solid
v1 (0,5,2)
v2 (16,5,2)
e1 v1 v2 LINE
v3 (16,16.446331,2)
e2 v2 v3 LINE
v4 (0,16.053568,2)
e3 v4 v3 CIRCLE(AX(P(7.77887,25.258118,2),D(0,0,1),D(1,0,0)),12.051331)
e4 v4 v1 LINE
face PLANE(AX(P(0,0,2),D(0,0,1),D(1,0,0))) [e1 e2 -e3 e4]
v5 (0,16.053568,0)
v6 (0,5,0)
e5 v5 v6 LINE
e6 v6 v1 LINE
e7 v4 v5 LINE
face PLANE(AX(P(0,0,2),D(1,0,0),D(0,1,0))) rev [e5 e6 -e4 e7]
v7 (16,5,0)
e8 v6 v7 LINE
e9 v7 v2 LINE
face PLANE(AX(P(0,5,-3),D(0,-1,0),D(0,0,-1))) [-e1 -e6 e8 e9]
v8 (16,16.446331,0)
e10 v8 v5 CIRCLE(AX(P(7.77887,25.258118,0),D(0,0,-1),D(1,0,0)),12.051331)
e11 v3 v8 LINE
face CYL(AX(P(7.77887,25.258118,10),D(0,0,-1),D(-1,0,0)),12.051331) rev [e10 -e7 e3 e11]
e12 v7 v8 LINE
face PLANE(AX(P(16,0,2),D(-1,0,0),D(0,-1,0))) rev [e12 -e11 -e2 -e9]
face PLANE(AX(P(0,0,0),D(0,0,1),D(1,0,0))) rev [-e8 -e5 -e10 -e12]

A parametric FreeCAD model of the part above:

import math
import FreeCAD as App
import Part
import Sketcher
from FreeCAD import Vector
Q = App.Units.Quantity

doc = App.newDocument("Part")
body = doc.addObject("PartDesign::Body", "Body")

# Sketch on XY plane
sketch1 = doc.addObject("Sketcher::SketchObject", "Sketch")
body.addObject(sketch1)
sketch1.AttachmentSupport = (doc.XY_Plane, [""])
sketch1.MapMode = "FlatFace"
sketch1.addGeometry(Part.LineSegment(Vector(0, 32, 0), Vector(0, 0, 0)), False)
sketch1.addGeometry(Part.LineSegment(Vector(0, 0, 0), Vector(16, 0, 0)), False)
sketch1.addGeometry(Part.LineSegment(Vector(16, 0, 0), Vector(16, 32, 0)), False)
sketch1.addGeometry(Part.LineSegment(Vector(16, 32, 0), Vector(0, 32, 0)), False)
sketch1.addConstraint(Sketcher.Constraint("Coincident", 0, 2, 1, 1))
sketch1.addConstraint(Sketcher.Constraint("Coincident", 1, 2, 2, 1))
sketch1.addConstraint(Sketcher.Constraint("Coincident", 2, 2, 3, 1))
sketch1.addConstraint(Sketcher.Constraint("Coincident", 3, 2, 0, 1))
sketch1.addConstraint(Sketcher.Constraint("Vertical", 0))
sketch1.addConstraint(Sketcher.Constraint("Horizontal", 1))
sketch1.addConstraint(Sketcher.Constraint("Vertical", 2))
sketch1.addConstraint(Sketcher.Constraint("Horizontal", 3))
sketch1.addConstraint(Sketcher.Constraint("Coincident", 0, 2, -1, 1))
sketch1.addConstraint(Sketcher.Constraint("DistanceX", 1, 1, 1, 2, Q("16 mm")))
sketch1.addConstraint(Sketcher.Constraint("DistanceY", 0, 2, 0, 1, Q("31.855735 mm")))
pad1 = doc.addObject("PartDesign::Pad", "Pad")
body.addObject(pad1)
pad1.Profile = sketch1
pad1.Length = 2

# Sketch on XY plane
sketch2 = doc.addObject("Sketcher::SketchObject", "Sketch001")
body.addObject(sketch2)
sketch2.AttachmentSupport = (doc.XY_Plane, [""])
sketch2.MapMode = "FlatFace"
sketch2.AttachmentOffset = App.Placement(Vector(0, 0, 2), App.Rotation())
sketch2.addGeometry(Part.LineSegment(Vector(0, 5, 0), Vector(0, 0, 0)), False)
sketch2.addGeometry(Part.LineSegment(Vector(0, 0, 0), Vector(16, 0, 0)), False)
sketch2.addGeometry(Part.LineSegment(Vector(16, 0, 0), Vector(16, 5, 0)), False)
sketch2.addGeometry(Part.LineSegment(Vector(16, 5, 0), Vector(0, 5, 0)), False)
sketch2.addConstraint(Sketcher.Constraint("Coincident", 0, 2, 1, 1))
sketch2.addConstraint(Sketcher.Constraint("Coincident", 1, 2, 2, 1))
sketch2.addConstraint(Sketcher.Constraint("Coincident", 2, 2, 3, 1))
sketch2.addConstraint(Sketcher.Constraint("Coincident", 3, 2, 0, 1))
sketch2.addConstraint(Sketcher.Constraint("Vertical", 0))
sketch2.addConstraint(Sketcher.Constraint("Horizontal", 1))
sketch2.addConstraint(Sketcher.Constraint("Vertical", 2))
sketch2.addConstraint(Sketcher.Constraint("Horizontal", 3))
sketch2.addConstraint(Sketcher.Constraint("Coincident", 0, 2, -1, 1))
sketch2.addConstraint(Sketcher.Constraint("DistanceX", 1, 1, 1, 2, Q("16 mm")))
sketch2.addConstraint(Sketcher.Constraint("DistanceY", 0, 2, 0, 1, Q("5 mm")))
pocket1 = doc.addObject("PartDesign::Pocket", "Pocket")
body.addObject(pocket1)
pocket1.Profile = sketch2
pocket1.Length = 5

# Sketch on XY plane
sketch3 = doc.addObject("Sketcher::SketchObject", "Sketch002")
body.addObject(sketch3)
sketch3.AttachmentSupport = (doc.XY_Plane, [""])
sketch3.MapMode = "FlatFace"
sketch3.addGeometry(Part.LineSegment(Vector(0, 32, 0), Vector(16, 32, 0)), False)
sketch3.addGeometry(Part.LineSegment(Vector(16, 32, 0), Vector(16, 19, 0)), False)
sketch3.addGeometry(Part.ArcOfCircle(Part.Circle(Vector(8, 28, 0), Vector(0, 0, 1), 12), math.radians(-130), math.radians(-48)), False)
sketch3.addGeometry(Part.LineSegment(Vector(0, 18, 0), Vector(0, 32, 0)), False)
sketch3.addConstraint(Sketcher.Constraint("Coincident", 0, 2, 1, 1))
sketch3.addConstraint(Sketcher.Constraint("Coincident", 1, 2, 2, 2))
sketch3.addConstraint(Sketcher.Constraint("Coincident", 2, 1, 3, 1))
sketch3.addConstraint(Sketcher.Constraint("Coincident", 3, 2, 0, 1))
sketch3.addConstraint(Sketcher.Constraint("Horizontal", 0))
sketch3.addConstraint(Sketcher.Constraint("Vertical", 1))
sketch3.addConstraint(Sketcher.Constraint("Vertical", 3))
sketch3.addConstraint(Sketcher.Constraint("PointOnObject", 2, 1, -2))
sketch3.addConstraint(Sketcher.Constraint("DistanceX", 0, 1, 0, 2, Q("16 mm")))
sketch3.addConstraint(Sketcher.Constraint("Radius", 2, Q("12.208729 mm")))
sketch3.addConstraint(Sketcher.Constraint("DistanceY", 1, 2, 1, 1, Q("13.104849 mm")))
sketch3.addConstraint(Sketcher.Constraint("DistanceY", 3, 1, 3, 2, Q("13.427867 mm")))
sketch3.addConstraint(Sketcher.Constraint("DistanceY", -1, 1, 2, 3, Q("27.808506 mm")))
pocket2 = doc.addObject("PartDesign::Pocket", "Pocket001")
body.addObject(pocket2)
pocket2.Profile = sketch3
pocket2.Length = 10
pocket2.Reversed = True

# Sketch on XY plane
sketch4 = doc.addObject("Sketcher::SketchObject", "Sketch003")
body.addObject(sketch4)
sketch4.AttachmentSupport = (doc.XY_Plane, [""])
sketch4.MapMode = "FlatFace"
sketch4.addGeometry(Part.LineSegment(Vector(16, 18.8, 0), Vector(16, 16.4, 0)), False)
sketch4.addGeometry(Part.ArcOfCircle(Part.Circle(Vector(7.8, 25.3, 0), Vector(0, 0, 1), 12.1), math.radians(-130), math.radians(-47)), False)
sketch4.addGeometry(Part.LineSegment(Vector(0, 16.1, 0), Vector(0, 18.4, 0)), False)
sketch4.addGeometry(Part.LineSegment(Vector(0, 18.4, 0), Vector(16, 18.8, 0)), False)
sketch4.addConstraint(Sketcher.Constraint("Coincident", 0, 2, 1, 2))
sketch4.addConstraint(Sketcher.Constraint("Coincident", 1, 1, 2, 1))
sketch4.addConstraint(Sketcher.Constraint("Coincident", 2, 2, 3, 1))
sketch4.addConstraint(Sketcher.Constraint("Coincident", 3, 2, 0, 1))
sketch4.addConstraint(Sketcher.Constraint("Vertical", 0))
sketch4.addConstraint(Sketcher.Constraint("Vertical", 2))
sketch4.addConstraint(Sketcher.Constraint("PointOnObject", 1, 1, -2))
sketch4.addConstraint(Sketcher.Constraint("DistanceX", -1, 1, 0, 2, Q("16 mm")))
sketch4.addConstraint(Sketcher.Constraint("Radius", 1, Q("12.051331 mm")))
sketch4.addConstraint(Sketcher.Constraint("DistanceY", 2, 1, 2, 2, Q("2.3743 mm")))
sketch4.addConstraint(Sketcher.Constraint("Distance", 3, Q("16.00326 mm")))
sketch4.addConstraint(Sketcher.Constraint("DistanceY", 0, 2, 0, 1, Q("2.304555 mm")))
sketch4.addConstraint(Sketcher.Constraint("DistanceY", -1, 1, 1, 3, Q("25.258118 mm")))
pocket3 = doc.addObject("PartDesign::Pocket", "Pocket002")
body.addObject(pocket3)
pocket3.Profile = sketch4
pocket3.Length = 10
pocket3.Reversed = True

doc.recompute()
